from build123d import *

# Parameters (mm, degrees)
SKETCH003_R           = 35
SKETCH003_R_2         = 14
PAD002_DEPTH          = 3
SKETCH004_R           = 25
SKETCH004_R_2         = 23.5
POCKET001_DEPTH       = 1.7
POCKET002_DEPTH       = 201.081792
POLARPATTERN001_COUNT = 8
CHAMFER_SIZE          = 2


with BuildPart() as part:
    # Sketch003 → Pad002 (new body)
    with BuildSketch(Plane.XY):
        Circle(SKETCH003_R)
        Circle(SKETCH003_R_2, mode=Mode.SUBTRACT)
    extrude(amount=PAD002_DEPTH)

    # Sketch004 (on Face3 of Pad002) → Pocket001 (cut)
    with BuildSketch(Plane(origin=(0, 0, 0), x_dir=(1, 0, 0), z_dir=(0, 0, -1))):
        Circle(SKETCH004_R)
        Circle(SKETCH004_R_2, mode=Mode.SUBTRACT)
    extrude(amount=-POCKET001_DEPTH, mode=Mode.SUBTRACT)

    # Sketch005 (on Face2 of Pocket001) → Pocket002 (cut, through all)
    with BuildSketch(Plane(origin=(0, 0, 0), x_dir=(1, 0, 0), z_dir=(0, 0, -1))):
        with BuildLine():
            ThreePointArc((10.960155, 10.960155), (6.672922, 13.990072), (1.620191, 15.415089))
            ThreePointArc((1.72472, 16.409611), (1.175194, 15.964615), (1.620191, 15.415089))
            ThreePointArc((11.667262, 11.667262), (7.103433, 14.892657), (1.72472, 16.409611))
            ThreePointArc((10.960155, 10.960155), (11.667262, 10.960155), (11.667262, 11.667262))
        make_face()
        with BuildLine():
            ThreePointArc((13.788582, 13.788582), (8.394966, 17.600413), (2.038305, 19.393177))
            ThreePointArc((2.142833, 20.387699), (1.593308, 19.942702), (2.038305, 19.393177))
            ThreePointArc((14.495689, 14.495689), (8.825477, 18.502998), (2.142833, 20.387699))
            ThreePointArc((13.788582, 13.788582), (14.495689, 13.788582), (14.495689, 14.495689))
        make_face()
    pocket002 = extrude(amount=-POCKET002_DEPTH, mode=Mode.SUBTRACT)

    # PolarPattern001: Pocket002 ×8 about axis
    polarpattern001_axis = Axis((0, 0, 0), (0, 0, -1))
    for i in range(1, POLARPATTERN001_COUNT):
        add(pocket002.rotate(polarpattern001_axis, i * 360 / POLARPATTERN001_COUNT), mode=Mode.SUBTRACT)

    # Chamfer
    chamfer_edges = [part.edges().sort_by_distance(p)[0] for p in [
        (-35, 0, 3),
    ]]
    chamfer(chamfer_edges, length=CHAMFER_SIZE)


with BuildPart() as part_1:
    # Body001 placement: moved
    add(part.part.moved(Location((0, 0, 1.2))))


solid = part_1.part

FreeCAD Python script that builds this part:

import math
import FreeCAD as App
import Part
import Sketcher
Q = App.Units.Quantity


def edges_at(feature, points):
    """Names of the edges that pass closest to the given points."""
    edges = feature.Shape.Edges
    near = lambda p: min(range(len(edges)), key=lambda i: edges[i].distToShape(Part.Vertex(*p))[0])
    return sorted({f"Edge{near(p) + 1}" for p in points})

doc = App.newDocument("Part")
body = doc.addObject("PartDesign::Body", "Body")

sketch1 = body.newObject("Sketcher::SketchObject", "Sketch")
sketch1.AttachmentSupport = (doc.getObject("XY_Plane"), [""])
sketch1.MapMode = "FlatFace"
sketch1.addGeometry([
    Part.Circle(App.Vector(0, 0, 0), App.Vector(0, 0, 1), 35),
    Part.Circle(App.Vector(0, 0, 0), App.Vector(0, 0, 1), 14),
], False)
sketch1.addConstraint([
    Sketcher.Constraint("Coincident", 0, 3, -1, 1),
    Sketcher.Constraint("Coincident", 1, 3, -1, 1),
    Sketcher.Constraint("Diameter", 0, Q("70 mm")),
    Sketcher.Constraint("Diameter", 1, Q("28 mm")),
])
pad1 = body.newObject("PartDesign::Pad", "Pad")
pad1.Profile = sketch1
pad1.Length = 3

sketch2 = body.newObject("Sketcher::SketchObject", "Sketch001")
sketch2.AttachmentSupport = (doc.getObject("XY_Plane"), [""])
sketch2.MapMode = "FlatFace"
sketch2.addGeometry([
    Part.Circle(App.Vector(0, 0, 0), App.Vector(0, 0, 1), 25),
    Part.Circle(App.Vector(0, 0, 0), App.Vector(0, 0, 1), 24),
], False)
sketch2.addConstraint([
    Sketcher.Constraint("Coincident", 0, 3, -1, 1),
    Sketcher.Constraint("Coincident", 1, 3, -1, 1),
    Sketcher.Constraint("Diameter", 0, Q("50 mm")),
    Sketcher.Constraint("Diameter", 1, Q("47 mm")),
])
pocket1 = body.newObject("PartDesign::Pocket", "Pocket")
pocket1.Profile = sketch2
pocket1.Length = 1.7
pocket1.Reversed = True

sketch3 = body.newObject("Sketcher::SketchObject", "Sketch002")
sketch3.AttachmentSupport = (doc.getObject("XY_Plane"), [""])
sketch3.MapMode = "FlatFace"
sketch3.addGeometry([
    Part.ArcOfCircle(Part.Circle(App.Vector(0, 0, 0), App.Vector(0, 0, 1), 15.5), math.radians(-84), math.radians(-45)),
    Part.ArcOfCircle(Part.Circle(App.Vector(11.3, -11.3, 0), App.Vector(0, 0, 1), 0.5), math.radians(-45), math.radians(135)),
    Part.ArcOfCircle(Part.Circle(App.Vector(0, 0, 0), App.Vector(0, 0, 1), 16.5), math.radians(-84), math.radians(-45)),
    Part.ArcOfCircle(Part.Circle(App.Vector(1.7, -15.9, 0), App.Vector(0, 0, 1), 0.5), math.radians(96), math.radians(276)),
    Part.ArcOfCircle(Part.Circle(App.Vector(0, 0, 0), App.Vector(0, 0, 1), 19.5), math.radians(-84), math.radians(-45)),
    Part.ArcOfCircle(Part.Circle(App.Vector(14.1, -14.1, 0), App.Vector(0, 0, 1), 0.5), math.radians(-45), math.radians(135)),
    Part.ArcOfCircle(Part.Circle(App.Vector(0, 0, 0), App.Vector(0, 0, 1), 20.5), math.radians(-84), math.radians(-45)),
    Part.ArcOfCircle(Part.Circle(App.Vector(2.1, -19.9, 0), App.Vector(0, 0, 1), 0.5), math.radians(96), math.radians(276)),
], False)
sketch3.addConstraint([
    Sketcher.Constraint("Tangent", 0, 2, 1, 2),
    Sketcher.Constraint("Tangent", 1, 1, 2, 2),
    Sketcher.Constraint("Tangent", 2, 1, 3, 2),
    Sketcher.Constraint("Tangent", 3, 1, 0, 1),
    Sketcher.Constraint("Tangent", 4, 2, 5, 2),
    Sketcher.Constraint("Tangent", 5, 1, 6, 2),
    Sketcher.Constraint("Tangent", 6, 1, 7, 2),
    Sketcher.Constraint("Tangent", 7, 1, 4, 1),
    Sketcher.Constraint("Coincident", 0, 3, -1, 1),
    Sketcher.Constraint("Coincident", 2, 3, -1, 1),
    Sketcher.Constraint("Coincident", 4, 3, -1, 1),
    Sketcher.Constraint("Coincident", 6, 3, -1, 1),
    Sketcher.Constraint("Equal", 3, 5),
    Sketcher.Constraint("Radius", 1, Q("0.5 mm")),
    Sketcher.Constraint("Radius", 4, Q("19.500001 mm")),
    Sketcher.Constraint("Radius", 0, Q("15.499994 mm")),
    Sketcher.Constraint("DistanceY", 6, 1, -1, 1, Q("20.387699 mm")),
    Sketcher.Constraint("DistanceX", 3, 3, 0, 2, Q("9.2877 mm")),
    Sketcher.Constraint("DistanceX", -1, 1, 1, 3, Q("11.313709 mm")),
    Sketcher.Constraint("DistanceX", -1, 1, 4, 2, Q("13.788582 mm")),
])
pocket2 = body.newObject("PartDesign::Pocket", "Pocket001")
pocket2.Profile = sketch3
pocket2.Type = "ThroughAll"
pocket2.Reversed = True
doc.recompute()

polarpattern = body.newObject("PartDesign::PolarPattern", "PolarPattern")
polarpattern.Originals = [pocket2]
polarpattern.Axis = (doc.getObject("Z_Axis"), [""])
polarpattern.Angle = 360
polarpattern.Occurrences = 8
body.Tip = polarpattern
doc.recompute()

chamfer = body.newObject("PartDesign::Chamfer", "Chamfer")
chamfer.Base = (polarpattern, edges_at(polarpattern, [(-35, 0, 3)]))
chamfer.Size = 2
body2 = doc.addObject("PartDesign::Body", "Body001")
doc.recompute()

body.Placement = App.Placement(App.Vector(0, 0, 1.2), App.Rotation(App.Vector(0, 0, 1), 0))
boolean = body2.newObject("PartDesign::Boolean", "Boolean")
boolean.Type = "Fuse"
boolean.addObjects([body])

doc.recompute()
